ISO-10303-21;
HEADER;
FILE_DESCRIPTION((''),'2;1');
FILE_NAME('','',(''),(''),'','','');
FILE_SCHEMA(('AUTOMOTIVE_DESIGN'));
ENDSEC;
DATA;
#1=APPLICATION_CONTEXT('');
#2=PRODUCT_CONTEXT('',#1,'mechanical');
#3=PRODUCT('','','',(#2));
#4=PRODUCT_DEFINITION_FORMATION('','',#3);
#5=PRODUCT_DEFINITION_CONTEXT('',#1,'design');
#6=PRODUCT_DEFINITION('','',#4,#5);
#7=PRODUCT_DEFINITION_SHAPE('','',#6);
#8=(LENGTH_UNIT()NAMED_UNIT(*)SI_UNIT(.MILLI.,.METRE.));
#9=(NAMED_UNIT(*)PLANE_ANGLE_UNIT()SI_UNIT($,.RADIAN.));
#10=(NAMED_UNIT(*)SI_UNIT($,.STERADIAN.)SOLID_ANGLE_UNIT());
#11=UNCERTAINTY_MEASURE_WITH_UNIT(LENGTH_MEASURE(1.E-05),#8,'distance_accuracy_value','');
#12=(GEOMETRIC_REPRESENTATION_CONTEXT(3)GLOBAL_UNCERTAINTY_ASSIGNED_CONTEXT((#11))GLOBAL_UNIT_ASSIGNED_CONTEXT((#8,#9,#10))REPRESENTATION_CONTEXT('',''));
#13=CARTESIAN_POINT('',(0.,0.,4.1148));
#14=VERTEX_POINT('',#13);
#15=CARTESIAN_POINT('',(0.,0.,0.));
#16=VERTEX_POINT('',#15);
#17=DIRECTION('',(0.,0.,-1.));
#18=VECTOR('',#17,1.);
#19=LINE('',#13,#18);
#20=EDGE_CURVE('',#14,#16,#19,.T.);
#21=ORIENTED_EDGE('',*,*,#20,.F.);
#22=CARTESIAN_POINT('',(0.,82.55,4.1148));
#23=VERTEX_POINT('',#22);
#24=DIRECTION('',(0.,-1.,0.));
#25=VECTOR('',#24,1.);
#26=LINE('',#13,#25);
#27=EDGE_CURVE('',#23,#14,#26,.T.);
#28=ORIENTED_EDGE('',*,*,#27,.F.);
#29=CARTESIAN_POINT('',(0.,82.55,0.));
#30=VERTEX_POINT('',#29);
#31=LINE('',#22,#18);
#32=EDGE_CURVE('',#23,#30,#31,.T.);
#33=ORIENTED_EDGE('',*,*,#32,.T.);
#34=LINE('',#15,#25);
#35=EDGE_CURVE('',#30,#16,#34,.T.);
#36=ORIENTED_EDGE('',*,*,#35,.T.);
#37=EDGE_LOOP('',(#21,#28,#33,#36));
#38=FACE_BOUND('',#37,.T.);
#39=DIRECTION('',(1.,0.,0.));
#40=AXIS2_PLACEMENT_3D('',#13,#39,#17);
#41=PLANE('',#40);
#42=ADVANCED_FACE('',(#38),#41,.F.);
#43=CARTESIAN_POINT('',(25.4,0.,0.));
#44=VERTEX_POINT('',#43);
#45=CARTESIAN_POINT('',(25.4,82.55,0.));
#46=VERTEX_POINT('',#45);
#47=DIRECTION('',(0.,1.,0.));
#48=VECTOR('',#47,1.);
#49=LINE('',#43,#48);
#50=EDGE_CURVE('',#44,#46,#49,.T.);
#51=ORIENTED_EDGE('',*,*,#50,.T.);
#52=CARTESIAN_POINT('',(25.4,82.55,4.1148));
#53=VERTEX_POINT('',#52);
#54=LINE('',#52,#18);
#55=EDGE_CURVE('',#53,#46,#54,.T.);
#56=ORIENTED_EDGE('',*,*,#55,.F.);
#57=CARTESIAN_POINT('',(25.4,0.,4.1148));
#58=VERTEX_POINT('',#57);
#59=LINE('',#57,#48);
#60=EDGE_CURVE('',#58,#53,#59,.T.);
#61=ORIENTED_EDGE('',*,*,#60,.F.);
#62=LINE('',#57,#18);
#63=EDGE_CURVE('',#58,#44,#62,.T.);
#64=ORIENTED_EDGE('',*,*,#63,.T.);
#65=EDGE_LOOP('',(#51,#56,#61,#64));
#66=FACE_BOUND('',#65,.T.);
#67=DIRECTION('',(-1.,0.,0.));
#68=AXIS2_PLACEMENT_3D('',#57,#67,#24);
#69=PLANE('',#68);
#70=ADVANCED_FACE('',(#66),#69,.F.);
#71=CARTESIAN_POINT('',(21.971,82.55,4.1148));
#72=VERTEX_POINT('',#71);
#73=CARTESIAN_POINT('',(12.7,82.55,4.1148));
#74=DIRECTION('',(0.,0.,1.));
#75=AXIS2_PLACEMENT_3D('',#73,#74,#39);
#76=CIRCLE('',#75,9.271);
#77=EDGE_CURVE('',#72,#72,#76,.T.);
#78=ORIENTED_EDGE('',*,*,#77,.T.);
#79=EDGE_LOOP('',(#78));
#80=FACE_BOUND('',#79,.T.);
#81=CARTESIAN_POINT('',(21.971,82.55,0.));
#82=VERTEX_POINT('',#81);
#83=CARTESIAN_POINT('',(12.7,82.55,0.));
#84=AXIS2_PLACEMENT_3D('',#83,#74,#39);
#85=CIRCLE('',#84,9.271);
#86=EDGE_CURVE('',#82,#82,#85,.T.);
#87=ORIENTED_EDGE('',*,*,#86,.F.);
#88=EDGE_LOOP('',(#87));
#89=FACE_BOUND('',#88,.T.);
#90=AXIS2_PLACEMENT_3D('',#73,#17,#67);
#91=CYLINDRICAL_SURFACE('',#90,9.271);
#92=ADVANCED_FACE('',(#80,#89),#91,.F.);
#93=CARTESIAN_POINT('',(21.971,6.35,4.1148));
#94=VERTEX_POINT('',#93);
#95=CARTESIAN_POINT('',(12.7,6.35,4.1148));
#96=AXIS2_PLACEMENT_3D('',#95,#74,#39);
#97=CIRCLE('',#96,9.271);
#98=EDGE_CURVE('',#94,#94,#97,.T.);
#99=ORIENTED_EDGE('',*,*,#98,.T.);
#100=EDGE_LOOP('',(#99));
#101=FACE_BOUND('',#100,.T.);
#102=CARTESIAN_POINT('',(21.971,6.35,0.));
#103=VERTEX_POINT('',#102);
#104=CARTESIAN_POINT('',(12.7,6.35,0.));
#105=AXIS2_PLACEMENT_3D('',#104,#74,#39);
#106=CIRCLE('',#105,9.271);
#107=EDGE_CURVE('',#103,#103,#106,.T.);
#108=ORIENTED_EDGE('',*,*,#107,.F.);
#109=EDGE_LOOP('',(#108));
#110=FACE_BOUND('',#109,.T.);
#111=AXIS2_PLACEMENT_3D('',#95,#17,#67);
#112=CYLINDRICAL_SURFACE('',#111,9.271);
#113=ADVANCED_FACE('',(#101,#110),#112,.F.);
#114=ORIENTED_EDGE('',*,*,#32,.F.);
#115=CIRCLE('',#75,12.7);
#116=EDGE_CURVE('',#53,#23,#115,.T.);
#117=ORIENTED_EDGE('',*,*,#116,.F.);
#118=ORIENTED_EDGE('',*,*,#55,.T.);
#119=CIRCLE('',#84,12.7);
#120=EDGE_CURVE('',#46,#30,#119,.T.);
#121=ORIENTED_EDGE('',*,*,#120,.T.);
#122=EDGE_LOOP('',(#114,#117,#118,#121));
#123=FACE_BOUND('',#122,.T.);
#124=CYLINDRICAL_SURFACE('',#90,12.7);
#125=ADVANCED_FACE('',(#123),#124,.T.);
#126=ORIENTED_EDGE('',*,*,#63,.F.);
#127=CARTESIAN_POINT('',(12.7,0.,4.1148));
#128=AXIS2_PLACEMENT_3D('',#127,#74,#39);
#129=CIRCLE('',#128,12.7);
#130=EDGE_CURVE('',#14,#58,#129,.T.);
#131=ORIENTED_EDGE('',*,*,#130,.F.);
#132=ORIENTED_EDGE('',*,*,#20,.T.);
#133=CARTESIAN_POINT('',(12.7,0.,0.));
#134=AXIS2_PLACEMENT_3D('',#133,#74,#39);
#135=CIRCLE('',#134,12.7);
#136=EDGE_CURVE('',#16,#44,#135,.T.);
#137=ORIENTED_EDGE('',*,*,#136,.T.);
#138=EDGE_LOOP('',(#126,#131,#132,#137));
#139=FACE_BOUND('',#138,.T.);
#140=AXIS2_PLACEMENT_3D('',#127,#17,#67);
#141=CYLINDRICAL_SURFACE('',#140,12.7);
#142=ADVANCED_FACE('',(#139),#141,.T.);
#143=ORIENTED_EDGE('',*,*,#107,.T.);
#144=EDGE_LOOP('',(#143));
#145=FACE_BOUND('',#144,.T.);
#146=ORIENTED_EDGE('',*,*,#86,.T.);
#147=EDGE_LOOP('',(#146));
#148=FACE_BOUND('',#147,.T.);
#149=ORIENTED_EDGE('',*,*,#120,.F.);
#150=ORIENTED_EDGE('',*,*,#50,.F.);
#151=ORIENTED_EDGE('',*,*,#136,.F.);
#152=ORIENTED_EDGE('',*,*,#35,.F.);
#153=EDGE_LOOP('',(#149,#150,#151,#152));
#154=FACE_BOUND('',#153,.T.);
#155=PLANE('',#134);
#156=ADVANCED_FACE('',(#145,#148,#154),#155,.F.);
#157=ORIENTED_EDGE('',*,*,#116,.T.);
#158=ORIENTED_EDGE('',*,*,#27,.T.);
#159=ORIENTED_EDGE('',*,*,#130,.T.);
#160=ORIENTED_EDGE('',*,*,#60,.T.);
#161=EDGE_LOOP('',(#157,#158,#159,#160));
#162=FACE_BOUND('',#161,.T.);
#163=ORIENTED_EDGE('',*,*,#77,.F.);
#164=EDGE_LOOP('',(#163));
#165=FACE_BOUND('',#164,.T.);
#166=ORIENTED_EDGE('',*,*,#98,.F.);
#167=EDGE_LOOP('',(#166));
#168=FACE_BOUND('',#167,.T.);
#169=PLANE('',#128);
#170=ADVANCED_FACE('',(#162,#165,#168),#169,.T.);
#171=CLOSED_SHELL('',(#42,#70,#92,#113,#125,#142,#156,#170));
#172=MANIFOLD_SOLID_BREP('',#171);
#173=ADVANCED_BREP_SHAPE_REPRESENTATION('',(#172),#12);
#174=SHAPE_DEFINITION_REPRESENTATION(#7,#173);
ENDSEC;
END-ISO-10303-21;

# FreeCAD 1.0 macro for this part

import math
import FreeCAD as App
import Part
import Sketcher
from FreeCAD import Vector
Q = App.Units.Quantity

doc = App.newDocument("Part")
params = doc.addObject("Spreadsheet::Sheet", "Params")
for row, (alias, value) in enumerate([
    ("sketch1_radius", "0.5 in"),
    ("sketch1_diameter", "0.73 in"),
    ("sketch1_height", "3.25 in"),
    ("pad1_length", "0.162 in"),
], start=1):
    params.set(f"A{row}", alias)
    params.set(f"B{row}", "=" + value)
    params.setAlias(f"B{row}", alias)

body = doc.addObject("PartDesign::Body", "Body")

# Sketch on XY plane
sketch1 = body.newObject("Sketcher::SketchObject", "Sketch")
sketch1.AttachmentSupport = (doc.getObject("XY_Plane"), [""])
sketch1.MapMode = "FlatFace"
sketch1.addGeometry([
    Part.LineSegment(Vector(0, 82.55, 0), Vector(0, 0, 0)),  # 0
    Part.ArcOfCircle(Part.Circle(Vector(12.7, 0, 0), Vector(0, 0, 1), 12.7), math.radians(180), math.radians(360)),  # 1
    Part.LineSegment(Vector(25.4, 0, 0), Vector(25.4, 82.55, 0)),  # 2
    Part.ArcOfCircle(Part.Circle(Vector(12.7, 82.55, 0), Vector(0, 0, 1), 12.7), math.radians(0), math.radians(180)),  # 3
    Part.Circle(Vector(12.7, 6.35, 0), Vector(0, 0, 1), 9.271),  # 4
    Part.Circle(Vector(12.7, 82.55, 0), Vector(0, 0, 1), 9.271),  # 5
], False)
sketch1.addConstraint([
    Sketcher.Constraint("Tangent", 0, 2, 1, 1),
    Sketcher.Constraint("Tangent", 1, 2, 2, 1),
    Sketcher.Constraint("Tangent", 2, 2, 3, 1),
    Sketcher.Constraint("Tangent", 3, 2, 0, 1),
    Sketcher.Constraint("Vertical", 0),
    Sketcher.Constraint("Vertical", 2),
    Sketcher.Constraint("Coincident", 0, 2, -1, 1),
    Sketcher.Constraint("Coincident", 5, 3, 3, 3),
    Sketcher.Constraint("Equal", 4, 5),
    Sketcher.Constraint("Vertical", 3, 3, 4, 3),
    Sketcher.Constraint("Radius", 1, Q("0.5 in")),
    Sketcher.Constraint("Diameter", 4, Q("0.73 in")),
    Sketcher.Constraint("DistanceY", 4, 3, 3, 3, Q("3 in")),
    Sketcher.Constraint("DistanceY", 0, 2, 0, 1, Q("3.25 in")),
])
sketch1.setExpression("Constraints[10]", "Params.sketch1_radius")
sketch1.setExpression("Constraints[11]", "Params.sketch1_diameter")
sketch1.setExpression("Constraints[13]", "Params.sketch1_height")
pad1 = body.newObject("PartDesign::Pad", "Pad")
pad1.Profile = sketch1
pad1.setExpression("Length", "Params.pad1_length")

doc.recompute()
